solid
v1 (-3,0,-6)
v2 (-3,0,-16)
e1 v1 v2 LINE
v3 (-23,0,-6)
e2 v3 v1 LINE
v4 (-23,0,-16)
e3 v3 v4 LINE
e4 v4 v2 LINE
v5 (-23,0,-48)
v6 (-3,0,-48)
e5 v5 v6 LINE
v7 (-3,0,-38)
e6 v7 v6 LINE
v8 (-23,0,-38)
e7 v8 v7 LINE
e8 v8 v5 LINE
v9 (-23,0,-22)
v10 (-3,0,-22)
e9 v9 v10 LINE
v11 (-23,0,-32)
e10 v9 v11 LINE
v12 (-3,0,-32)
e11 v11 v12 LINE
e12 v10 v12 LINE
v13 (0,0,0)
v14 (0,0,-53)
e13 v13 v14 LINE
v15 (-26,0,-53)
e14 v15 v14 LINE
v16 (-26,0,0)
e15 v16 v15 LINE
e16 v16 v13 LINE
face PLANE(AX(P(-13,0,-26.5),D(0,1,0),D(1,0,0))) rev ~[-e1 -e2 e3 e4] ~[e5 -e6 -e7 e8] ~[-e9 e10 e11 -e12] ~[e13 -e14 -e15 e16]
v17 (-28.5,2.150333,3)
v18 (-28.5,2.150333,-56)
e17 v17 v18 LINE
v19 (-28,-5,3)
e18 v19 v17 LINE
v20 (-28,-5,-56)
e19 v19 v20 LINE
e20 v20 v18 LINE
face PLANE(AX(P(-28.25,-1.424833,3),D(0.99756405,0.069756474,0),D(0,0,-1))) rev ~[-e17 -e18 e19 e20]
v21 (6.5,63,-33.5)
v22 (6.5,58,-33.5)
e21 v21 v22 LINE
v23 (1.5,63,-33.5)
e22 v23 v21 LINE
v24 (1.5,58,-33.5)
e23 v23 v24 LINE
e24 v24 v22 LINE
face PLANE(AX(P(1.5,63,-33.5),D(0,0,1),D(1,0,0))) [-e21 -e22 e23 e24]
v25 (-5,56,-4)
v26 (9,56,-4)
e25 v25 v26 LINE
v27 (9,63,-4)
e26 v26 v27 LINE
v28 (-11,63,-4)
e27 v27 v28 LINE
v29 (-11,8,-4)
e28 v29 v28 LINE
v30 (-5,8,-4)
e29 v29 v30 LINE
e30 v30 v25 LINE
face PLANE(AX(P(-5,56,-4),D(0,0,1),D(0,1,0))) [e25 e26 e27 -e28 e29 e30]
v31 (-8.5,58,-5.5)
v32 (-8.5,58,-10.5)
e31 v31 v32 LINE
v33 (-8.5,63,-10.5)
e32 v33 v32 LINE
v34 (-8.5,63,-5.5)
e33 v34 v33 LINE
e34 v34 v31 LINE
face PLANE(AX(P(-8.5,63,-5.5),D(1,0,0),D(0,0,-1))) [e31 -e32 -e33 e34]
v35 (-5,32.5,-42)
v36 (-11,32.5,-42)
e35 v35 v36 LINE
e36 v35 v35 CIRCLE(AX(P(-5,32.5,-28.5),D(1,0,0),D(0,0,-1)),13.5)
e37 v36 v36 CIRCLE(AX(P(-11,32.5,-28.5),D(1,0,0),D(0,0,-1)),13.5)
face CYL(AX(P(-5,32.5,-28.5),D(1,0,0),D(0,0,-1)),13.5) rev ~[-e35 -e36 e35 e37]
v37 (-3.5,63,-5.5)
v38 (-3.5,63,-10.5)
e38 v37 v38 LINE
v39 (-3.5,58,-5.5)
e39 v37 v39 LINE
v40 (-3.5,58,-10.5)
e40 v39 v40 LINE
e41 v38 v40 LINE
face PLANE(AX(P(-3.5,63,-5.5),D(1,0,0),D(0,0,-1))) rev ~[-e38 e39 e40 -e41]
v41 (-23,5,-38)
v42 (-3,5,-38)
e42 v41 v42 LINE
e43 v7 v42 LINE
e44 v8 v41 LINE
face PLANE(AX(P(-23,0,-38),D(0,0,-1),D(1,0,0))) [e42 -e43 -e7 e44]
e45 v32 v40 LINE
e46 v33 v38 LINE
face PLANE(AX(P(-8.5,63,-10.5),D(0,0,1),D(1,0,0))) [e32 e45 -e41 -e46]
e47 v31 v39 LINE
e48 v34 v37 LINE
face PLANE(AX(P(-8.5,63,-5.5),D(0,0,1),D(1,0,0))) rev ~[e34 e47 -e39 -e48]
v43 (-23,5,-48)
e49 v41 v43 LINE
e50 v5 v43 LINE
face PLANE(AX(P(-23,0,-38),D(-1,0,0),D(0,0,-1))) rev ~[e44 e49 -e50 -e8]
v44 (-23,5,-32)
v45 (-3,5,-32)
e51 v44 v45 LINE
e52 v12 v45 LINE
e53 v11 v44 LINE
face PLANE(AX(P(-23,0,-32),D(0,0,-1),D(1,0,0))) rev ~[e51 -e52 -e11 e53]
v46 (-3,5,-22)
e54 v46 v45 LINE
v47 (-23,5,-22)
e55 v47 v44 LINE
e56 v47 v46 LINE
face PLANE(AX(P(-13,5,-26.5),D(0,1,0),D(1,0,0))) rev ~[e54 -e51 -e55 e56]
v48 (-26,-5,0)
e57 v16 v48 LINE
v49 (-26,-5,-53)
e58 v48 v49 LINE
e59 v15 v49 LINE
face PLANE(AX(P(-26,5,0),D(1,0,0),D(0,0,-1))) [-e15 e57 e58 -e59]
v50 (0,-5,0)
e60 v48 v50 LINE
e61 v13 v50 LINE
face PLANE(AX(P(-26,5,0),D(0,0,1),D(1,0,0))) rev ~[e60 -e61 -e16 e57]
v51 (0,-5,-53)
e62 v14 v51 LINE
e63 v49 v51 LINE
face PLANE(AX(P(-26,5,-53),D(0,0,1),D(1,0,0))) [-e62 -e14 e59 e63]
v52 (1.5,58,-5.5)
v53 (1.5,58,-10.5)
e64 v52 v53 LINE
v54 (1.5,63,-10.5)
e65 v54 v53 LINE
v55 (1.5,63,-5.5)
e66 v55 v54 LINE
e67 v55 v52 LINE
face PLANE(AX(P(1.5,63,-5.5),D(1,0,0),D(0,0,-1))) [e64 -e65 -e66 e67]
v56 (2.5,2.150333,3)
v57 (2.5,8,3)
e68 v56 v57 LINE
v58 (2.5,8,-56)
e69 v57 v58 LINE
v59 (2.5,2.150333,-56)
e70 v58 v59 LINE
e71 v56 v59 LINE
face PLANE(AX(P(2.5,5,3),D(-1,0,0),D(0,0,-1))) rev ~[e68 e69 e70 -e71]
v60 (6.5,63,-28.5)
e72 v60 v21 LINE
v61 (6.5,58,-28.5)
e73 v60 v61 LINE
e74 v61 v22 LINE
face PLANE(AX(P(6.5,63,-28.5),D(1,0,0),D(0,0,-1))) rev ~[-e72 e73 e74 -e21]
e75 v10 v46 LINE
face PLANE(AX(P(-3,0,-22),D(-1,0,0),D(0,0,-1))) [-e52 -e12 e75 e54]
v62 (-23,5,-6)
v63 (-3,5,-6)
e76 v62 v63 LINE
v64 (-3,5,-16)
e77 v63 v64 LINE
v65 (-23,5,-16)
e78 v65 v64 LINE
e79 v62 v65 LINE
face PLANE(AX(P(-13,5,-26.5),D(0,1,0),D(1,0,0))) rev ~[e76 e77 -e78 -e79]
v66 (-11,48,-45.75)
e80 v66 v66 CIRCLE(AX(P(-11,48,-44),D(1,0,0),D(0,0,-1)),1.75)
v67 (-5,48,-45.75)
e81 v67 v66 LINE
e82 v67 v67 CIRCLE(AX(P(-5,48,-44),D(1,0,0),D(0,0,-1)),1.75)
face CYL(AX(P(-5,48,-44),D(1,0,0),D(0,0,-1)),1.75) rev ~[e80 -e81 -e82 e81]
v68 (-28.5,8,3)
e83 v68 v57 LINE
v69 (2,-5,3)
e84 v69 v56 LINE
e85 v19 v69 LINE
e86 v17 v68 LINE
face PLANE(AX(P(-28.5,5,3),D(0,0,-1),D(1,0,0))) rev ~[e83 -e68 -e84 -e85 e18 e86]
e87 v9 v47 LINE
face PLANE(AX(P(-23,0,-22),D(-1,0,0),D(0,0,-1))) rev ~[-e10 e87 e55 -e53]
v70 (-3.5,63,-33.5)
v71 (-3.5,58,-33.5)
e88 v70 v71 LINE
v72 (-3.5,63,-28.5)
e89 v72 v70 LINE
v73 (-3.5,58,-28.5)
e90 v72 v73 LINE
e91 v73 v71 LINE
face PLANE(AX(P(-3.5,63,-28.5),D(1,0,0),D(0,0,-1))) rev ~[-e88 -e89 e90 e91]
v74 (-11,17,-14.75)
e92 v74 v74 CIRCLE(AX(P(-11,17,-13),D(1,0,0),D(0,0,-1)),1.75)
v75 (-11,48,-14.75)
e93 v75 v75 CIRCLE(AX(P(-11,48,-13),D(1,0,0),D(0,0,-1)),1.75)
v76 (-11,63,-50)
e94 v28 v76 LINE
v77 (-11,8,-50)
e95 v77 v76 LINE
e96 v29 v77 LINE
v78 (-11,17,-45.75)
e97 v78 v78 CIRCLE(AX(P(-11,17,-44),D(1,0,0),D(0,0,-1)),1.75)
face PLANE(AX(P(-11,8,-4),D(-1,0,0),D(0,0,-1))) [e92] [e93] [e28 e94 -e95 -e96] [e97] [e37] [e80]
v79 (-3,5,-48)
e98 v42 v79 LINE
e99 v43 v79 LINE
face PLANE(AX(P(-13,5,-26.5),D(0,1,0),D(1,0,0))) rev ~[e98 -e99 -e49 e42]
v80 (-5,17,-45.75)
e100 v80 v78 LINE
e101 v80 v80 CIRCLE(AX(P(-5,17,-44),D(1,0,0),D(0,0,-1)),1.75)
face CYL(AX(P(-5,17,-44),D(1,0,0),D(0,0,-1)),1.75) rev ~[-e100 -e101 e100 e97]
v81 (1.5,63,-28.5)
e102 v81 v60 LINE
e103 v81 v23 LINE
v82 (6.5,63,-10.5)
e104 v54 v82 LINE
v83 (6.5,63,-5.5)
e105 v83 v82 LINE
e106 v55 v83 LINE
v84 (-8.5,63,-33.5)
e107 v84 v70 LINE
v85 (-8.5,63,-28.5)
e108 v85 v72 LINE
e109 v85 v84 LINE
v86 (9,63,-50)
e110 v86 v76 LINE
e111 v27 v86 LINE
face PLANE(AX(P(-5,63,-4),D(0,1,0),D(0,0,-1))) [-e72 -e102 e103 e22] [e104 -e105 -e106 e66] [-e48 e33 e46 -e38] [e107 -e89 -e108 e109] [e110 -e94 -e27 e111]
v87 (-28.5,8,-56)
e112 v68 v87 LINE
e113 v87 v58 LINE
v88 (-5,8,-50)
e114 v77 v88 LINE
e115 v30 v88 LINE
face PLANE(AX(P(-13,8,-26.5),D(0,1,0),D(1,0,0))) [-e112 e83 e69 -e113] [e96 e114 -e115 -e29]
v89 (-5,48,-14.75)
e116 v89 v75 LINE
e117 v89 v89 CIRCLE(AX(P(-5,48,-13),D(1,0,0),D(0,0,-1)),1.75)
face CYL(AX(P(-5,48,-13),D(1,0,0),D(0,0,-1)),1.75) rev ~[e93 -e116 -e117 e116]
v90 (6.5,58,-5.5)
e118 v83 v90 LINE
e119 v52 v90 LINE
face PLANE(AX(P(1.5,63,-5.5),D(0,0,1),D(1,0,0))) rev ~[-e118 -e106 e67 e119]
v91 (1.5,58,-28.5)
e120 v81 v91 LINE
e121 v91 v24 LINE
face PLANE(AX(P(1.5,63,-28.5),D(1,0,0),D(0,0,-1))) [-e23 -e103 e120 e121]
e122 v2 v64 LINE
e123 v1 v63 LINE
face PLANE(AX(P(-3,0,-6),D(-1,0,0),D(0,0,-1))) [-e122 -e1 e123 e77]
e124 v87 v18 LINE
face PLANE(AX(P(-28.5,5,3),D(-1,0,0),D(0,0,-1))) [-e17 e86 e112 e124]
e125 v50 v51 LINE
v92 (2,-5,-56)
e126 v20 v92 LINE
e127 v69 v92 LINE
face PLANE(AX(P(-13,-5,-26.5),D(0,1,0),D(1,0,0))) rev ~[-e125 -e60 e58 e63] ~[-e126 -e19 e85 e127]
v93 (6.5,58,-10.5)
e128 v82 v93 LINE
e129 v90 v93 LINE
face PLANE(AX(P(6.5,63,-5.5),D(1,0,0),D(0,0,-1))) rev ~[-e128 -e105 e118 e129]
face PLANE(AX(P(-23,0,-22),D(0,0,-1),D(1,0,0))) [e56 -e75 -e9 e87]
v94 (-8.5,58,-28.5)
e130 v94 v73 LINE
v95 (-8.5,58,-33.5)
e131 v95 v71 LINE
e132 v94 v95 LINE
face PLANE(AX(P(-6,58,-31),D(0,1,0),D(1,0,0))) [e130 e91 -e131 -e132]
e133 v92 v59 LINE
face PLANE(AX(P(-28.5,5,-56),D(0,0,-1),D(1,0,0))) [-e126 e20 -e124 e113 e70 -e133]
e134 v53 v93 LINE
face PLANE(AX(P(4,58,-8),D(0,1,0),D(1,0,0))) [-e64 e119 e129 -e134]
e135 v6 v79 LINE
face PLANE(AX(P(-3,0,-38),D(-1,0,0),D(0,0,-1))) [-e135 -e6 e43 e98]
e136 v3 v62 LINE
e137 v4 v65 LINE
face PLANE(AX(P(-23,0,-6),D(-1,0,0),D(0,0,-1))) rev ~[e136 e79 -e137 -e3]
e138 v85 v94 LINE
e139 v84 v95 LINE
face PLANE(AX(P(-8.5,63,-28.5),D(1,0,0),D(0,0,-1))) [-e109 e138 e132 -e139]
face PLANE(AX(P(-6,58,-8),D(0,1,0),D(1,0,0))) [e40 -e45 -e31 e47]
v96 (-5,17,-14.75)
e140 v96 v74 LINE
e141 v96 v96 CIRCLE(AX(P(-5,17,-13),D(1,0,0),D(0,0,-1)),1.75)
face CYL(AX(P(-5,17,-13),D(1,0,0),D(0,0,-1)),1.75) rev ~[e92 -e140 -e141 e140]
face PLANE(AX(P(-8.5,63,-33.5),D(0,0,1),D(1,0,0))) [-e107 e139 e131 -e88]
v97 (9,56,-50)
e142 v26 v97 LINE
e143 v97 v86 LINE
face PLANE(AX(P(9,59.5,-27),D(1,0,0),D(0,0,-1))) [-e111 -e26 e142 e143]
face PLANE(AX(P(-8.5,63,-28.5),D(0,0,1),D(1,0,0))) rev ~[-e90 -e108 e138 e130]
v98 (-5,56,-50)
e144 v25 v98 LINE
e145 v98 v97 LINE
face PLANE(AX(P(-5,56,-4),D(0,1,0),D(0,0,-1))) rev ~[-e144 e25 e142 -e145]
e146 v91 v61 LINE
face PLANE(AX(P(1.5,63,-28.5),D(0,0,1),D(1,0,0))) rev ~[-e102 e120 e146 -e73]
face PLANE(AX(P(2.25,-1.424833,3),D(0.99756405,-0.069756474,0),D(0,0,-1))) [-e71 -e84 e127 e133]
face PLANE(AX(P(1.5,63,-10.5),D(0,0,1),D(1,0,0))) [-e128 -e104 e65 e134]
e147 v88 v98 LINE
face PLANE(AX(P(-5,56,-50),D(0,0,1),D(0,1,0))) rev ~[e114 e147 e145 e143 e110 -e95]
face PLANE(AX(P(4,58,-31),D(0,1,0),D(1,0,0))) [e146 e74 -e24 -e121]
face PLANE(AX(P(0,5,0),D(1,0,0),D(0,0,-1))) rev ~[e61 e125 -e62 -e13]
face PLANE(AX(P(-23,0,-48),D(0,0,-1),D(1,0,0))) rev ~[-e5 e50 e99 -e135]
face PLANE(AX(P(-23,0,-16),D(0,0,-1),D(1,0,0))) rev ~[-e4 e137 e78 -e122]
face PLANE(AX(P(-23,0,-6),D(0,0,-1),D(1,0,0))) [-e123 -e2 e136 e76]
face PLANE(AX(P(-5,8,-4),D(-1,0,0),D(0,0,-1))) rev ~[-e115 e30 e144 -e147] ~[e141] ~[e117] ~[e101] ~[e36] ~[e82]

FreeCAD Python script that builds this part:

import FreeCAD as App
import Part
import Sketcher
from FreeCAD import Vector


def edges_at(feature, points):
    """Names of the edges that pass closest to the given points."""
    edges = feature.Shape.Edges
    near = lambda p: min(range(len(edges)), key=lambda i: edges[i].distToShape(Part.Vertex(*p))[0])
    return sorted({f"Edge{near(p) + 1}" for p in points})


def add_polygon(sketch, points):
    """Adds a closed chain of lines whose ends are joined by coincident constraints."""
    first, n = sketch.GeometryCount, len(points)
    for a, b in zip(points, points[1:] + points[:1]):
        sketch.addGeometry(Part.LineSegment(App.Vector(*a, 0), App.Vector(*b, 0)), False)
    for i in range(n):
        sketch.addConstraint(Sketcher.Constraint("Coincident", first + i, 2, first + (i + 1) % n, 1))

doc = App.newDocument("Part")
body = doc.addObject("PartDesign::Body", "Body")

# Sketch on XZ plane
sketch1 = doc.addObject("Sketcher::SketchObject", "Sketch")
body.addObject(sketch1)
sketch1.AttachmentSupport = (doc.XZ_Plane, [""])
sketch1.MapMode = "FlatFace"
add_polygon(sketch1, [(-26, -53), (-26, 0), (0, 0), (0, -53)])  # lines 0-3
add_polygon(sketch1, [(-3, -6), (-23, -6), (-23, -16), (-3, -16)])  # lines 4-7
add_polygon(sketch1, [(-3, -22), (-23, -22), (-23, -32), (-3, -32)])  # lines 8-11
add_polygon(sketch1, [(-3, -38), (-23, -38), (-23, -48), (-3, -48)])  # lines 12-15
sketch1.addConstraint(Sketcher.Constraint("Vertical", 0))
sketch1.addConstraint(Sketcher.Constraint("Horizontal", 1))
sketch1.addConstraint(Sketcher.Constraint("Vertical", 2))
sketch1.addConstraint(Sketcher.Constraint("Horizontal", 3))
sketch1.addConstraint(Sketcher.Constraint("Horizontal", 4))
sketch1.addConstraint(Sketcher.Constraint("Vertical", 5))
sketch1.addConstraint(Sketcher.Constraint("Horizontal", 6))
sketch1.addConstraint(Sketcher.Constraint("Vertical", 7))
sketch1.addConstraint(Sketcher.Constraint("Horizontal", 8))
sketch1.addConstraint(Sketcher.Constraint("Vertical", 9))
sketch1.addConstraint(Sketcher.Constraint("Horizontal", 10))
sketch1.addConstraint(Sketcher.Constraint("Vertical", 11))
sketch1.addConstraint(Sketcher.Constraint("Horizontal", 12))
sketch1.addConstraint(Sketcher.Constraint("Vertical", 13))
sketch1.addConstraint(Sketcher.Constraint("Horizontal", 14))
sketch1.addConstraint(Sketcher.Constraint("Vertical", 15))
sketch1.addConstraint(Sketcher.Constraint("Coincident", 1, 2, -1, 1))
sketch1.addConstraint(Sketcher.Constraint("Vertical", 5, 2, 8, 2))
sketch1.addConstraint(Sketcher.Constraint("Vertical", 7, 2, 10, 2))
sketch1.addConstraint(Sketcher.Constraint("Vertical", 9, 2, 12, 2))
sketch1.addConstraint(Sketcher.Constraint("Vertical", 11, 2, 14, 2))
sketch1.addConstraint(Sketcher.Constraint("Equal", 7, 9))
sketch1.addConstraint(Sketcher.Constraint("Equal", 11, 13))
sketch1.addConstraint(Sketcher.Constraint("DistanceX", 1, 1, 1, 2, 26.0))
sketch1.addConstraint(Sketcher.Constraint("DistanceX", 4, 2, 4, 1, 20.0))
sketch1.addConstraint(Sketcher.Constraint("DistanceY", 0, 1, 0, 2, 53.0))
sketch1.addConstraint(Sketcher.Constraint("DistanceY", 5, 2, 5, 1, 10.0))
sketch1.addConstraint(Sketcher.Constraint("DistanceX", 4, 2, -1, 1, 23.0))
sketch1.addConstraint(Sketcher.Constraint("DistanceY", 4, 2, -1, 1, 6.0))
sketch1.addConstraint(Sketcher.Constraint("DistanceY", 8, 2, -1, 1, 22.0))
sketch1.addConstraint(Sketcher.Constraint("DistanceY", 12, 2, -1, 1, 38.0))
pad1 = doc.addObject("PartDesign::Pad", "Pad")
body.addObject(pad1)
pad1.Profile = sketch1
pad1.Length = 5
pad1.Reversed = True

# Sketch on XZ plane
sketch2 = doc.addObject("Sketcher::SketchObject", "Sketch001")
body.addObject(sketch2)
sketch2.AttachmentSupport = (doc.XZ_Plane, [""])
sketch2.MapMode = "FlatFace"
sketch2.AttachmentOffset = App.Placement(Vector(0, 0, -5), App.Rotation())
add_polygon(sketch2, [(-28.5, -56), (-28.5, 3), (2.5, 3), (2.5, -56)])  # lines 0-3
add_polygon(sketch2, [(0, 0), (-26, 0), (-26, -53), (0, -53)])  # lines 4-7
sketch2.addConstraint(Sketcher.Constraint("Vertical", 0))
sketch2.addConstraint(Sketcher.Constraint("Horizontal", 1))
sketch2.addConstraint(Sketcher.Constraint("Vertical", 2))
sketch2.addConstraint(Sketcher.Constraint("Horizontal", 3))
sketch2.addConstraint(Sketcher.Constraint("Horizontal", 4))
sketch2.addConstraint(Sketcher.Constraint("Vertical", 5))
sketch2.addConstraint(Sketcher.Constraint("Horizontal", 6))
sketch2.addConstraint(Sketcher.Constraint("Vertical", 7))
sketch2.addConstraint(Sketcher.Constraint("Coincident", 7, 2, -1, 1))
sketch2.addConstraint(Sketcher.Constraint("DistanceX", 1, 1, 1, 2, 31.0))
sketch2.addConstraint(Sketcher.Constraint("DistanceX", 4, 2, 4, 1, 26.0))
sketch2.addConstraint(Sketcher.Constraint("DistanceY", 0, 1, 0, 2, 59.0))
sketch2.addConstraint(Sketcher.Constraint("DistanceY", 5, 2, 5, 1, 53.0))
sketch2.addConstraint(Sketcher.Constraint("DistanceY", -1, 1, 0, 2, 3.0))
sketch2.addConstraint(Sketcher.Constraint("DistanceX", 0, 2, -1, 1, 28.5))
pad2 = doc.addObject("PartDesign::Pad", "Pad001")
body.addObject(pad2)
pad2.Profile = sketch2
pad2.Length = 10

# Sketch on XZ plane
sketch3 = doc.addObject("Sketcher::SketchObject", "Sketch002")
body.addObject(sketch3)
sketch3.AttachmentSupport = (doc.XZ_Plane, [""])
sketch3.MapMode = "FlatFace"
sketch3.AttachmentOffset = App.Placement(Vector(0, 0, -5), App.Rotation())
add_polygon(sketch3, [(-28.5, -56), (-28.5, 3), (2.5, 3), (2.5, -56)])  # lines 0-3
sketch3.addConstraint(Sketcher.Constraint("Vertical", 0))
sketch3.addConstraint(Sketcher.Constraint("Horizontal", 1))
sketch3.addConstraint(Sketcher.Constraint("Vertical", 2))
sketch3.addConstraint(Sketcher.Constraint("Horizontal", 3))
sketch3.addConstraint(Sketcher.Constraint("DistanceX", 1, 1, 1, 2, 31.0))
sketch3.addConstraint(Sketcher.Constraint("DistanceY", 0, 1, 0, 2, 59.0))
sketch3.addConstraint(Sketcher.Constraint("DistanceY", -1, 1, 0, 2, 3.0))
sketch3.addConstraint(Sketcher.Constraint("DistanceX", 0, 2, -1, 1, 28.5))
pad3 = doc.addObject("PartDesign::Pad", "Pad002")
body.addObject(pad3)
pad3.Profile = sketch3
pad3.Length = 3
pad3.Reversed = True

# Sketch on XZ plane
sketch4 = doc.addObject("Sketcher::SketchObject", "Sketch003")
body.addObject(sketch4)
sketch4.AttachmentSupport = (doc.XZ_Plane, [""])
sketch4.MapMode = "FlatFace"
sketch4.AttachmentOffset = App.Placement(Vector(0, 0, -8), App.Rotation())
add_polygon(sketch4, [(-11, -50), (-11, -4), (-5, -4), (-5, -50)])  # lines 0-3
sketch4.addConstraint(Sketcher.Constraint("Vertical", 0))
sketch4.addConstraint(Sketcher.Constraint("Horizontal", 1))
sketch4.addConstraint(Sketcher.Constraint("Vertical", 2))
sketch4.addConstraint(Sketcher.Constraint("Horizontal", 3))
sketch4.addConstraint(Sketcher.Constraint("DistanceX", 1, 1, 1, 2, 6.0))
sketch4.addConstraint(Sketcher.Constraint("DistanceY", 0, 1, 0, 2, 46.0))
sketch4.addConstraint(Sketcher.Constraint("DistanceX", 0, 2, -1, 1, 11.0))
sketch4.addConstraint(Sketcher.Constraint("DistanceY", 0, 2, -1, 1, 4.0))
pad4 = doc.addObject("PartDesign::Pad", "Pad003")
body.addObject(pad4)
pad4.Profile = sketch4
pad4.Length = 55
pad4.Reversed = True

# Sketch on YZ plane
sketch5 = doc.addObject("Sketcher::SketchObject", "Sketch004")
body.addObject(sketch5)
sketch5.AttachmentSupport = (doc.YZ_Plane, [""])
sketch5.MapMode = "FlatFace"
sketch5.AttachmentOffset = App.Placement(Vector(0, 0, -5), App.Rotation())
sketch5.addGeometry(Part.Circle(Vector(17, -44, 0), Vector(0, 0, 1), 1.75), False)
sketch5.addGeometry(Part.Circle(Vector(17, -13, 0), Vector(0, 0, 1), 1.75), False)
sketch5.addGeometry(Part.Circle(Vector(48, -13, 0), Vector(0, 0, 1), 1.75), False)
sketch5.addGeometry(Part.Circle(Vector(48, -44, 0), Vector(0, 0, 1), 1.75), False)
sketch5.addGeometry(Part.Circle(Vector(32.5, -28.5, 0), Vector(0, 0, 1), 13.5), False)
sketch5.addConstraint(Sketcher.Constraint("Equal", 0, 1))
sketch5.addConstraint(Sketcher.Constraint("Equal", 1, 2))
sketch5.addConstraint(Sketcher.Constraint("Equal", 2, 3))
sketch5.addConstraint(Sketcher.Constraint("Horizontal", 1, 3, 2, 3))
sketch5.addConstraint(Sketcher.Constraint("Horizontal", 0, 3, 3, 3))
sketch5.addConstraint(Sketcher.Constraint("Vertical", 0, 3, 1, 3))
sketch5.addConstraint(Sketcher.Constraint("Vertical", 2, 3, 3, 3))
sketch5.addConstraint(Sketcher.Constraint("Diameter", 4, 27.0))
sketch5.addConstraint(Sketcher.Constraint("Diameter", 0, 3.5))
sketch5.addConstraint(Sketcher.Constraint("DistanceX", -1, 1, 0, 3, 17.0))
sketch5.addConstraint(Sketcher.Constraint("DistanceY", 0, 3, -1, 1, 44.0))
sketch5.addConstraint(Sketcher.Constraint("DistanceY", 1, 3, -1, 1, 13.0))
sketch5.addConstraint(Sketcher.Constraint("DistanceX", -1, 1, 2, 3, 48.0))
sketch5.addConstraint(Sketcher.Constraint("DistanceX", -1, 1, 4, 3, 32.5))
sketch5.addConstraint(Sketcher.Constraint("DistanceY", 4, 3, -1, 1, 28.5))
pocket1 = doc.addObject("PartDesign::Pocket", "Pocket")
body.addObject(pocket1)
pocket1.Profile = sketch5
pocket1.Type = "ThroughAll"
doc.recompute()

chamfer = doc.addObject("PartDesign::Chamfer", "Chamfer")
body.addObject(chamfer)
chamfer.Base = (pocket1, edges_at(pocket1, [(-28.5, -5, -26.5), (2.5, -5, -26.5)]))
chamfer.ChamferType = "Two distances"
chamfer.Size = 0.5
chamfer.Size2 = 7.150333

# Sketch on YZ plane
sketch6 = doc.addObject("Sketcher::SketchObject", "Sketch005")
body.addObject(sketch6)
sketch6.AttachmentSupport = (doc.YZ_Plane, [""])
sketch6.MapMode = "FlatFace"
sketch6.AttachmentOffset = App.Placement(Vector(0, 0, -5), App.Rotation())
add_polygon(sketch6, [(63, -4), (56, -4), (56, -50), (63, -50)])  # lines 0-3
sketch6.addConstraint(Sketcher.Constraint("Horizontal", 0))
sketch6.addConstraint(Sketcher.Constraint("Vertical", 1))
sketch6.addConstraint(Sketcher.Constraint("Horizontal", 2))
sketch6.addConstraint(Sketcher.Constraint("Vertical", 3))
sketch6.addConstraint(Sketcher.Constraint("DistanceX", 0, 2, 0, 1, 7.0))
sketch6.addConstraint(Sketcher.Constraint("DistanceY", 1, 2, 1, 1, 46.0))
sketch6.addConstraint(Sketcher.Constraint("DistanceX", -1, 1, 0, 2, 56.0))
sketch6.addConstraint(Sketcher.Constraint("DistanceY", 0, 2, -1, 1, 4.0))
pad5 = doc.addObject("PartDesign::Pad", "Pad004")
body.addObject(pad5)
pad5.Profile = sketch6
pad5.Length = 14

# Sketch on XZ plane
sketch7 = doc.addObject("Sketcher::SketchObject", "Sketch006")
body.addObject(sketch7)
sketch7.AttachmentSupport = (doc.XZ_Plane, [""])
sketch7.MapMode = "FlatFace"
sketch7.AttachmentOffset = App.Placement(Vector(0, 0, -63), App.Rotation())
add_polygon(sketch7, [(-8.5, -33.5), (-8.5, -28.5), (-3.5, -28.5), (-3.5, -33.5)])  # lines 0-3
add_polygon(sketch7, [(1.5, -33.5), (1.5, -28.5), (6.5, -28.5), (6.5, -33.5)])  # lines 4-7
add_polygon(sketch7, [(-8.5, -10.5), (-8.5, -5.5), (-3.5, -5.5), (-3.5, -10.5)])  # lines 8-11
add_polygon(sketch7, [(1.5, -10.5), (1.5, -5.5), (6.5, -5.5), (6.5, -10.5)])  # lines 12-15
sketch7.addConstraint(Sketcher.Constraint("Vertical", 0))
sketch7.addConstraint(Sketcher.Constraint("Horizontal", 1))
sketch7.addConstraint(Sketcher.Constraint("Vertical", 2))
sketch7.addConstraint(Sketcher.Constraint("Horizontal", 3))
sketch7.addConstraint(Sketcher.Constraint("Vertical", 4))
sketch7.addConstraint(Sketcher.Constraint("Horizontal", 5))
sketch7.addConstraint(Sketcher.Constraint("Vertical", 6))
sketch7.addConstraint(Sketcher.Constraint("Horizontal", 7))
sketch7.addConstraint(Sketcher.Constraint("Vertical", 8))
sketch7.addConstraint(Sketcher.Constraint("Horizontal", 9))
sketch7.addConstraint(Sketcher.Constraint("Vertical", 10))
sketch7.addConstraint(Sketcher.Constraint("Horizontal", 11))
sketch7.addConstraint(Sketcher.Constraint("Vertical", 12))
sketch7.addConstraint(Sketcher.Constraint("Horizontal", 13))
sketch7.addConstraint(Sketcher.Constraint("Vertical", 14))
sketch7.addConstraint(Sketcher.Constraint("Horizontal", 15))
sketch7.addConstraint(Sketcher.Constraint("Horizontal", 1, 2, 4, 2))
sketch7.addConstraint(Sketcher.Constraint("Horizontal", 3, 2, 6, 2))
sketch7.addConstraint(Sketcher.Constraint("Horizontal", 9, 2, 12, 2))
sketch7.addConstraint(Sketcher.Constraint("Horizontal", 11, 2, 14, 2))
sketch7.addConstraint(Sketcher.Constraint("Vertical", 3, 2, 8, 2))
sketch7.addConstraint(Sketcher.Constraint("Vertical", 2, 2, 9, 2))
sketch7.addConstraint(Sketcher.Constraint("Vertical", 7, 2, 12, 2))
sketch7.addConstraint(Sketcher.Constraint("Vertical", 6, 2, 13, 2))
sketch7.addConstraint(Sketcher.Constraint("Equal", 3, 5))
sketch7.addConstraint(Sketcher.Constraint("Equal", 15, 0))
sketch7.addConstraint(Sketcher.Constraint("Equal", 6, 8))
sketch7.addConstraint(Sketcher.Constraint("DistanceX", 1, 1, 1, 2, 5.0))
sketch7.addConstraint(Sketcher.Constraint("DistanceX", 1, 2, 4, 2, 5.0))
sketch7.addConstraint(Sketcher.Constraint("DistanceY", 0, 2, 8, 2, 23.0))
sketch7.addConstraint(Sketcher.Constraint("DistanceX", 0, 2, -1, 1, 8.5))
sketch7.addConstraint(Sketcher.Constraint("DistanceY", 0, 2, -1, 1, 28.5))
pocket2 = doc.addObject("PartDesign::Pocket", "Pocket001")
body.addObject(pocket2)
pocket2.Profile = sketch7
pocket2.Length = 5
pocket2.Reversed = True

doc.recompute()
